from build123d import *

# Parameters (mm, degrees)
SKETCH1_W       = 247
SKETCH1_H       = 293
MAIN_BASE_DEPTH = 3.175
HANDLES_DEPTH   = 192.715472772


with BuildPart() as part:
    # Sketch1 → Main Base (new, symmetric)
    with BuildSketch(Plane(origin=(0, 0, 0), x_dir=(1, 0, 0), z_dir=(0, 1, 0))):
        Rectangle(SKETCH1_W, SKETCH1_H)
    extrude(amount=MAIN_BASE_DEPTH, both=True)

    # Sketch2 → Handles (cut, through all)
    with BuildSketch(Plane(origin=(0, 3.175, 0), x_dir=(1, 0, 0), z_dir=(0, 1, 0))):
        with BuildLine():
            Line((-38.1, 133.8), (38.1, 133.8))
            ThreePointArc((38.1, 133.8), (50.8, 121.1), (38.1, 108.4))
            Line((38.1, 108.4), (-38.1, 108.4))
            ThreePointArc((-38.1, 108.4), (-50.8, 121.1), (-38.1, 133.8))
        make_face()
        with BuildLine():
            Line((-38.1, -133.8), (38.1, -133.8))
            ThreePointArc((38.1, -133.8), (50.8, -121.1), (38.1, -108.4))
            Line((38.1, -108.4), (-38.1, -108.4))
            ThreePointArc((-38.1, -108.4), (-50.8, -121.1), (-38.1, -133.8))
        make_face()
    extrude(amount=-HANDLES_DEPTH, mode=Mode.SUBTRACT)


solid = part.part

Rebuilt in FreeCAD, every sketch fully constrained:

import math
import FreeCAD as App
import Part
import Sketcher
from FreeCAD import Vector
Q = App.Units.Quantity

doc = App.newDocument("Part")
body = doc.addObject("PartDesign::Body", "Body")

# Sketch on XZ plane
sketch1 = body.newObject("Sketcher::SketchObject", "Sketch")
sketch1.AttachmentSupport = (doc.getObject("XZ_Plane"), [""])
sketch1.MapMode = "FlatFace"
sketch1.addGeometry(Part.LineSegment(Vector(-124, -146, 0), Vector(-124, 146, 0)), False)
sketch1.addGeometry(Part.LineSegment(Vector(-124, 146, 0), Vector(124, 146, 0)), False)
sketch1.addGeometry(Part.LineSegment(Vector(124, 146, 0), Vector(124, -146, 0)), False)
sketch1.addGeometry(Part.LineSegment(Vector(124, -146, 0), Vector(-124, -146, 0)), False)
sketch1.addConstraint(Sketcher.Constraint("Coincident", 0, 2, 1, 1))
sketch1.addConstraint(Sketcher.Constraint("Coincident", 1, 2, 2, 1))
sketch1.addConstraint(Sketcher.Constraint("Coincident", 2, 2, 3, 1))
sketch1.addConstraint(Sketcher.Constraint("Coincident", 3, 2, 0, 1))
sketch1.addConstraint(Sketcher.Constraint("Vertical", 0))
sketch1.addConstraint(Sketcher.Constraint("Horizontal", 1))
sketch1.addConstraint(Sketcher.Constraint("Vertical", 2))
sketch1.addConstraint(Sketcher.Constraint("Horizontal", 3))
sketch1.addConstraint(Sketcher.Constraint("Symmetric", 0, 2, 2, 2, -1, 1))
sketch1.addConstraint(Sketcher.Constraint("DistanceX", 1, 1, 1, 2, Q("247 mm")))
sketch1.addConstraint(Sketcher.Constraint("DistanceY", 0, 1, 0, 2, Q("293 mm")))
pad1 = body.newObject("PartDesign::Pad", "Pad")
pad1.Profile = sketch1
pad1.Length = Q("0.25 in")
pad1.Midplane = True

# Sketch on XZ plane
sketch2 = body.newObject("Sketcher::SketchObject", "Sketch001")
sketch2.AttachmentSupport = (doc.getObject("XZ_Plane"), [""])
sketch2.MapMode = "FlatFace"
sketch2.AttachmentOffset = App.Placement(Vector(0, 0, -0.125 * 25.4), App.Rotation())
sketch2.addGeometry(Part.LineSegment(Vector(38, -134, 0), Vector(-38, -134, 0)), False)
sketch2.addGeometry(Part.ArcOfCircle(Part.Circle(Vector(-38, -121, 0), Vector(0, 0, 1), 13), math.radians(90), math.radians(270)), False)
sketch2.addGeometry(Part.LineSegment(Vector(-38, -108, 0), Vector(38, -108, 0)), False)
sketch2.addGeometry(Part.ArcOfCircle(Part.Circle(Vector(38, -121, 0), Vector(0, 0, 1), 13), math.radians(-90), math.radians(90)), False)
sketch2.addGeometry(Part.LineSegment(Vector(-38, 134, 0), Vector(38, 134, 0)), False)
sketch2.addGeometry(Part.ArcOfCircle(Part.Circle(Vector(38, 121, 0), Vector(0, 0, 1), 13), math.radians(-90), math.radians(90)), False)
sketch2.addGeometry(Part.LineSegment(Vector(38, 108, 0), Vector(-38, 108, 0)), False)
sketch2.addGeometry(Part.ArcOfCircle(Part.Circle(Vector(-38, 121, 0), Vector(0, 0, 1), 13), math.radians(90), math.radians(270)), False)
sketch2.addConstraint(Sketcher.Constraint("Tangent", 0, 2, 1, 2))
sketch2.addConstraint(Sketcher.Constraint("Tangent", 1, 1, 2, 1))
sketch2.addConstraint(Sketcher.Constraint("Tangent", 2, 2, 3, 2))
sketch2.addConstraint(Sketcher.Constraint("Tangent", 3, 1, 0, 1))
sketch2.addConstraint(Sketcher.Constraint("Tangent", 4, 2, 5, 2))
sketch2.addConstraint(Sketcher.Constraint("Tangent", 5, 1, 6, 1))
sketch2.addConstraint(Sketcher.Constraint("Tangent", 6, 2, 7, 2))
sketch2.addConstraint(Sketcher.Constraint("Tangent", 7, 1, 4, 1))
sketch2.addConstraint(Sketcher.Constraint("Horizontal", 0))
sketch2.addConstraint(Sketcher.Constraint("Horizontal", 2))
sketch2.addConstraint(Sketcher.Constraint("Horizontal", 4))
sketch2.addConstraint(Sketcher.Constraint("Horizontal", 6))
sketch2.addConstraint(Sketcher.Constraint("Equal", 3, 5))
sketch2.addConstraint(Sketcher.Constraint("Symmetric", 1, 3, 5, 3, -1, 1))
sketch2.addConstraint(Sketcher.Constraint("Vertical", 3, 3, 5, 3))
sketch2.addConstraint(Sketcher.Constraint("Vertical", 1, 3, 7, 3))
sketch2.addConstraint(Sketcher.Constraint("Radius", 1, Q("0.5 in")))
sketch2.addConstraint(Sketcher.Constraint("DistanceX", 0, 2, 0, 1, Q("3 in")))
sketch2.addConstraint(Sketcher.Constraint("DistanceY", 1, 3, -1, 1, Q("121.1 mm")))
pocket1 = body.newObject("PartDesign::Pocket", "Pocket")
pocket1.Profile = sketch2
pocket1.Type = "ThroughAll"
pocket1.Reversed = True

doc.recompute()
